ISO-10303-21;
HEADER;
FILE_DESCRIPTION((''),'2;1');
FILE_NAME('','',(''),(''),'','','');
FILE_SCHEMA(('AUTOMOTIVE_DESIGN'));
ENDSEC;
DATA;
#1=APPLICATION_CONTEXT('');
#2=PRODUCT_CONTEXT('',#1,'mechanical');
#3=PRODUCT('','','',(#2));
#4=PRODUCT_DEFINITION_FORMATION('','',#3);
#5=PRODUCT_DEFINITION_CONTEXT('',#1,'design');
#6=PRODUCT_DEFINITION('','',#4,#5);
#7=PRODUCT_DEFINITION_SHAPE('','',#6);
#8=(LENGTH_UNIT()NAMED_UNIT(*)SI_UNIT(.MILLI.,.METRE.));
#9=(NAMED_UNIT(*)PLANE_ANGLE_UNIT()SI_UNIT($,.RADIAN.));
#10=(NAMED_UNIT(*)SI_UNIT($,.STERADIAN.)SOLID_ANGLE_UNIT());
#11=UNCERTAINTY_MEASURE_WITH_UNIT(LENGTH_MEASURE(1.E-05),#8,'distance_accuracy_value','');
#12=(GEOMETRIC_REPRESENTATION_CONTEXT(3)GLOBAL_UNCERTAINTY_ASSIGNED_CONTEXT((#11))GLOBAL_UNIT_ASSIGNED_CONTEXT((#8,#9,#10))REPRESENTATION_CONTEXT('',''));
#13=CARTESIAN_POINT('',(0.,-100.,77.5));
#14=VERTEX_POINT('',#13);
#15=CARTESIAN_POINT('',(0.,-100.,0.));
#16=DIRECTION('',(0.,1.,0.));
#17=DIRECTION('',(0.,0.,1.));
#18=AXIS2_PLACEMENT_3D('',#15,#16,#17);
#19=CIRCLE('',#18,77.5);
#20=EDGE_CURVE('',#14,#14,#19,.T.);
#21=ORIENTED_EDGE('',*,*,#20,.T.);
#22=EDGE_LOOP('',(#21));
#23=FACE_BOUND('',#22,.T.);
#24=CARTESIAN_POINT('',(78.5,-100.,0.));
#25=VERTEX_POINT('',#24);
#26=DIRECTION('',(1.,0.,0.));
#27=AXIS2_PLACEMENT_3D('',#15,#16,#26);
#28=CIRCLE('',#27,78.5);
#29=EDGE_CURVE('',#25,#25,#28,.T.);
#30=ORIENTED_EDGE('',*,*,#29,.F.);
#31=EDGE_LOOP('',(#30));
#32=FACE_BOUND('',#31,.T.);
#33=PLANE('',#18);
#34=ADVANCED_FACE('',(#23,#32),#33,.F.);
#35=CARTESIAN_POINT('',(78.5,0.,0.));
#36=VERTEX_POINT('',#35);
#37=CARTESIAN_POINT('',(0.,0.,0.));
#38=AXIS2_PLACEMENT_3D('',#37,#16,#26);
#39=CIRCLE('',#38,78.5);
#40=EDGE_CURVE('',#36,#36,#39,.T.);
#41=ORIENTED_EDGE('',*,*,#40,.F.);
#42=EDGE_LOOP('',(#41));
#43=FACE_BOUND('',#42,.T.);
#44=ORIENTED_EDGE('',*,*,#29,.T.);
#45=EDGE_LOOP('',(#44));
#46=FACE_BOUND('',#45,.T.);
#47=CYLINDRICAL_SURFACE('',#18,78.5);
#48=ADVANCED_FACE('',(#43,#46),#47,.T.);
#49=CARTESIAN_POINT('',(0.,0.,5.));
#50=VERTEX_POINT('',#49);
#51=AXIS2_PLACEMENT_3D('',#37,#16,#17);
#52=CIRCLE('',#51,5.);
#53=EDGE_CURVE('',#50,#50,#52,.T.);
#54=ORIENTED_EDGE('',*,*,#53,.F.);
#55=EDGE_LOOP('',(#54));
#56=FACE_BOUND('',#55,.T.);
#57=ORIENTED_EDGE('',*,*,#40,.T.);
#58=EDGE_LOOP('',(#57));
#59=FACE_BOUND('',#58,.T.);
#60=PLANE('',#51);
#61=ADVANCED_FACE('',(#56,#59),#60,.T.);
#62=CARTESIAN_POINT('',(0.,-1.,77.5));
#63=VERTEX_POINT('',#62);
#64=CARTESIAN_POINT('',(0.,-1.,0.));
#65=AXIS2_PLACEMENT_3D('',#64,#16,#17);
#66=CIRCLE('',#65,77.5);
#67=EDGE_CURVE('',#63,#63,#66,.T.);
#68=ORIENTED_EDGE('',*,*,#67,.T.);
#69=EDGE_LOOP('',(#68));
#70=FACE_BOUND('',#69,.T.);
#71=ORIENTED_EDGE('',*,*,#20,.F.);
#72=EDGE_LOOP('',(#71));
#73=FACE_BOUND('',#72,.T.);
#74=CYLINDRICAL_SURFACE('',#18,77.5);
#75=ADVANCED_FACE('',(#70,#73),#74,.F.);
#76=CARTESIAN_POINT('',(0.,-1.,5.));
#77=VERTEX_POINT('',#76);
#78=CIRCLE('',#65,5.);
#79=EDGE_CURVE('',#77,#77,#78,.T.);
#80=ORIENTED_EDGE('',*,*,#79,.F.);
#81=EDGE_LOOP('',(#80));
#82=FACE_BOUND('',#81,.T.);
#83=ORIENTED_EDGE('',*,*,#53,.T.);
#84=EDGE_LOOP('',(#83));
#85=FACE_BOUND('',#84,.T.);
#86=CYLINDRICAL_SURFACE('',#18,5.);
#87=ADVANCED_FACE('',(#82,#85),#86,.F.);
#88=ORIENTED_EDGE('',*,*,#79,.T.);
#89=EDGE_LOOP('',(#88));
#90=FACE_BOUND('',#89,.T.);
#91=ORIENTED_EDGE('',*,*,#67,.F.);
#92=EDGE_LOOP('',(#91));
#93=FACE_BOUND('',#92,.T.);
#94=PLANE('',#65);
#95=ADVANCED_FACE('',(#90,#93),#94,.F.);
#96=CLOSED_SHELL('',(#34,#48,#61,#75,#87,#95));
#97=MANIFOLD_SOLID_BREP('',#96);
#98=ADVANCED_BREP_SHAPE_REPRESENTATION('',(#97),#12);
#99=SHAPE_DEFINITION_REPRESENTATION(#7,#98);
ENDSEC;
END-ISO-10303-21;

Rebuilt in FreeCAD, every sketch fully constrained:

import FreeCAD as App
import Part
import Sketcher
from FreeCAD import Vector
Q = App.Units.Quantity

doc = App.newDocument("Part")
body = doc.addObject("PartDesign::Body", "Body")

# Sketch on XZ plane
sketch1 = body.newObject("Sketcher::SketchObject", "Sketch")
sketch1.AttachmentSupport = (doc.getObject("XZ_Plane"), [""])
sketch1.MapMode = "FlatFace"
sketch1.addGeometry(Part.Circle(Vector(0, 0, 0), Vector(0, 0, 1), 78), False)
sketch1.addConstraint(Sketcher.Constraint("Coincident", 0, 3, -1, 1))
sketch1.addConstraint(Sketcher.Constraint("Diameter", 0, Q("155 mm")))
pad1 = body.newObject("PartDesign::Pad", "Pad")
pad1.Profile = sketch1
pad1.Length = 1

# Sketch on XZ plane
sketch2 = body.newObject("Sketcher::SketchObject", "Sketch001")
sketch2.AttachmentSupport = (doc.getObject("XZ_Plane"), [""])
sketch2.MapMode = "FlatFace"
sketch2.addGeometry(Part.Circle(Vector(0, 0, 0), Vector(0, 0, 1), 78), False)
sketch2.addGeometry(Part.Circle(Vector(0, 0, 0), Vector(0, 0, 1), 78), False)
sketch2.addConstraint(Sketcher.Constraint("Coincident", 0, 3, -1, 1))
sketch2.addConstraint(Sketcher.Constraint("Coincident", 1, 3, -1, 1))
sketch2.addConstraint(Sketcher.Constraint("Diameter", 0, Q("157 mm")))
sketch2.addConstraint(Sketcher.Constraint("Diameter", 1, Q("155 mm")))
pad2 = body.newObject("PartDesign::Pad", "Pad001")
pad2.Profile = sketch2
pad2.Length = 100

# Sketch on XZ plane
sketch3 = body.newObject("Sketcher::SketchObject", "Sketch002")
sketch3.AttachmentSupport = (doc.getObject("XZ_Plane"), [""])
sketch3.MapMode = "FlatFace"
sketch3.addGeometry(Part.Circle(Vector(0, 0, 0), Vector(0, 0, 1), 5), False)
sketch3.addConstraint(Sketcher.Constraint("Coincident", 0, 3, -1, 1))
sketch3.addConstraint(Sketcher.Constraint("Diameter", 0, Q("10 mm")))
pocket1 = body.newObject("PartDesign::Pocket", "Pocket")
pocket1.Profile = sketch3
pocket1.Type = "ThroughAll"
pocket1.Reversed = True

doc.recompute()
